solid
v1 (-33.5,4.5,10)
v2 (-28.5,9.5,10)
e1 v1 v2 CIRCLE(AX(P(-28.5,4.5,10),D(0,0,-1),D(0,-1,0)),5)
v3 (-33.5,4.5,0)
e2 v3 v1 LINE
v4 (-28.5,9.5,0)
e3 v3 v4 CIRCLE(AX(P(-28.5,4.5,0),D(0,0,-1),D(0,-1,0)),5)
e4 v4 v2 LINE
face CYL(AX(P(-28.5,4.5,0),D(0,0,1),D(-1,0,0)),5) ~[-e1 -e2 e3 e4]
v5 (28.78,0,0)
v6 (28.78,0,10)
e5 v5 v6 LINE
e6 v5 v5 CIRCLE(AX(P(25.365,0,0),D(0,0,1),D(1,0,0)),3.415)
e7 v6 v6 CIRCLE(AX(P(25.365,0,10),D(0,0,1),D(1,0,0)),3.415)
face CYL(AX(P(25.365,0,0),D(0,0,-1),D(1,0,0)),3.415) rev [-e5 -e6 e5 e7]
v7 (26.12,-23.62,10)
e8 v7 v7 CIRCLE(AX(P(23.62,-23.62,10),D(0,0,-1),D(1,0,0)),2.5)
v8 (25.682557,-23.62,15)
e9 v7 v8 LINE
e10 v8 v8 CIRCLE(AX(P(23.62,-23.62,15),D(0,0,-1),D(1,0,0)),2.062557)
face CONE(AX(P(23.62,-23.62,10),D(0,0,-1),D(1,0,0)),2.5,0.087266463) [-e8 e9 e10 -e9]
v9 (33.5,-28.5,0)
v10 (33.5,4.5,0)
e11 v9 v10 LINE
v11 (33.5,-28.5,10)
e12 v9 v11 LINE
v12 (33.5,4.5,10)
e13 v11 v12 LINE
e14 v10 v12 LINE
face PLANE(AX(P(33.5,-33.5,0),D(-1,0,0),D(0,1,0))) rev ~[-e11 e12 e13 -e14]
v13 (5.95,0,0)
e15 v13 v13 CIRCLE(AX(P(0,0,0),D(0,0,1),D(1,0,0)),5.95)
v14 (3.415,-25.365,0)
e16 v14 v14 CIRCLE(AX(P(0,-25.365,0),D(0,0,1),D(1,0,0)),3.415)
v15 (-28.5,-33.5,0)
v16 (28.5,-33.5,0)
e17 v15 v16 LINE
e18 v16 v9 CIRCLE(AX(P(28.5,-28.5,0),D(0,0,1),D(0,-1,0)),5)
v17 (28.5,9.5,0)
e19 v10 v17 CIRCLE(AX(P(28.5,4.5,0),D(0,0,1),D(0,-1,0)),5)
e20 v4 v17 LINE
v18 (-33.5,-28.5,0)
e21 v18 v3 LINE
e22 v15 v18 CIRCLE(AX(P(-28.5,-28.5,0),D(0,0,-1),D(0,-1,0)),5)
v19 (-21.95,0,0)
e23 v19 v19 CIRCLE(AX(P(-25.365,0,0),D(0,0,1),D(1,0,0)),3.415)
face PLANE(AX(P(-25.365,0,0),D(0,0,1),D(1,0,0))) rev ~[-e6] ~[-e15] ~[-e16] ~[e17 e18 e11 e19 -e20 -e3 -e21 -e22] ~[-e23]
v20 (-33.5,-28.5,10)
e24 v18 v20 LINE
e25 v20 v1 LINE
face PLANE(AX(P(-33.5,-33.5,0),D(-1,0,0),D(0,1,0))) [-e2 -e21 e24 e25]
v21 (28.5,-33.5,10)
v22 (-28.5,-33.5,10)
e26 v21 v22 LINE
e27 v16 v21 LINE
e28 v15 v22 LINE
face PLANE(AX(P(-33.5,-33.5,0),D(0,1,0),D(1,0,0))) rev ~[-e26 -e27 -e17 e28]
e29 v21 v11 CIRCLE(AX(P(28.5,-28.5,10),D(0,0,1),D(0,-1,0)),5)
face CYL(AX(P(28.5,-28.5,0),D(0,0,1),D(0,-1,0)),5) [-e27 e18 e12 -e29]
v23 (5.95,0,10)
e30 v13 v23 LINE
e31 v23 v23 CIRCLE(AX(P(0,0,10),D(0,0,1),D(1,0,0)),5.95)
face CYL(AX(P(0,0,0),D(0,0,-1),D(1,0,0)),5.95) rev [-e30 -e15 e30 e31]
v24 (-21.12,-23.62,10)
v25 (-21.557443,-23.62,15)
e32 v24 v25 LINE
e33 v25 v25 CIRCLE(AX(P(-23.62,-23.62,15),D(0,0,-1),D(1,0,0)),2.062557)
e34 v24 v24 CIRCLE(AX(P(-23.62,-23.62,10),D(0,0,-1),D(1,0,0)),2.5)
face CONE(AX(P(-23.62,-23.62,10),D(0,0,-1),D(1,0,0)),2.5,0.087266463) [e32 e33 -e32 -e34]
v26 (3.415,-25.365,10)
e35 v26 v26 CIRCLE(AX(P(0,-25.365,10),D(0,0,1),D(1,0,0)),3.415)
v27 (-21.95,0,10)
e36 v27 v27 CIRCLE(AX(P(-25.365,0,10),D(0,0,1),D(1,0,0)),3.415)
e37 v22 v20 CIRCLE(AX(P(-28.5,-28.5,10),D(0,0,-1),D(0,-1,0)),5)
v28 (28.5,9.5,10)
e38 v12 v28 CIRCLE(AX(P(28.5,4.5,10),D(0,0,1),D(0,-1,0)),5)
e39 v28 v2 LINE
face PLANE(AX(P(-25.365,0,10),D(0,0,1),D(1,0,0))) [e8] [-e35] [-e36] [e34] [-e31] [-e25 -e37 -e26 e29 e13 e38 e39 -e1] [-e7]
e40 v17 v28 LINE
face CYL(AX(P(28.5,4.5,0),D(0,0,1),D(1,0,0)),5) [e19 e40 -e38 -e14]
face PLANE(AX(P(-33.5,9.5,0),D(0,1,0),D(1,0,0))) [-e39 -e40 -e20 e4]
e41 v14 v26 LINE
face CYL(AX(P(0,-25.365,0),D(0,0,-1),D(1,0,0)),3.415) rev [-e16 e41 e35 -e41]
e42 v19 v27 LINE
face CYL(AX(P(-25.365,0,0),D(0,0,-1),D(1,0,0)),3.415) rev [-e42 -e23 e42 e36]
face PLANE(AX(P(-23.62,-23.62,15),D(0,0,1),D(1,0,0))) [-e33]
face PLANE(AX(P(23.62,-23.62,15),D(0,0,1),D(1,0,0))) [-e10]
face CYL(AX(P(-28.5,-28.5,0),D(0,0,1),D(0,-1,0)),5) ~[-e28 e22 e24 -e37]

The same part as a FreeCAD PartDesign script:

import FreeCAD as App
import Part
import Sketcher


def edges_at(feature, points):
    """Names of the edges that pass closest to the given points."""
    edges = feature.Shape.Edges
    near = lambda p: min(range(len(edges)), key=lambda i: edges[i].distToShape(Part.Vertex(*p))[0])
    return sorted({f"Edge{near(p) + 1}" for p in points})


def add_polygon(sketch, points):
    """Adds a closed chain of lines whose ends are joined by coincident constraints."""
    first, n = sketch.GeometryCount, len(points)
    for a, b in zip(points, points[1:] + points[:1]):
        sketch.addGeometry(Part.LineSegment(App.Vector(*a, 0), App.Vector(*b, 0)), False)
    for i in range(n):
        sketch.addConstraint(Sketcher.Constraint("Coincident", first + i, 2, first + (i + 1) % n, 1))

doc = App.newDocument("Part")
params = doc.addObject("Spreadsheet::Sheet", "Params")
for row, (alias, value) in enumerate([
    ("sketch1_diameter", "11.9 mm"),
    ("sketch1_diameter2", "10.85 mm"),
    ("sketch1_height", "43 mm"),
    ("pad1_length", "10 mm"),
    ("sketch2_diameter", "10.85 mm"),
    ("sketch2_height", "43 mm"),
    ("pad2_length", "10 mm"),
    ("sketch3_diameter", "10.85 mm"),
    ("sketch3_diameter2", "6.83 mm"),
    ("pad3_length", "10 mm"),
    ("sketch4_diameter", "10.85 mm"),
    ("sketch4_height", "43 mm"),
    ("pad4_length", "10 mm"),
    ("sketch5_diameter", "5 mm"),
    ("pad5_length", "5 mm"),
    ("pad5_taper", "-5 deg"),
    ("fillet_radius", "5 mm"),
], start=1):
    params.set(f"A{row}", alias)
    params.set(f"B{row}", "=" + value)
    params.setAlias(f"B{row}", alias)

body = doc.addObject("PartDesign::Body", "Body")

sketch1 = doc.addObject("Sketcher::SketchObject", "Sketch")
body.addObject(sketch1)
sketch1.AttachmentSupport = (doc.XY_Plane, [""])
sketch1.MapMode = "FlatFace"
add_polygon(sketch1, [(-15, 10), (-15, -34), (15, -34), (15, 10)])
sketch1.addGeometry(Part.Circle(App.Vector(0, -25, 0), App.Vector(0, 0, 1), 5), False)
sketch1.addGeometry(Part.Circle(App.Vector(0, 0, 0), App.Vector(0, 0, 1), 6), False)
sketch1.addConstraint(Sketcher.Constraint("Vertical", 0))
sketch1.addConstraint(Sketcher.Constraint("Horizontal", 1))
sketch1.addConstraint(Sketcher.Constraint("Vertical", 2))
sketch1.addConstraint(Sketcher.Constraint("Horizontal", 3))
sketch1.addConstraint(Sketcher.Constraint("Coincident", 5, 3, -1, 1))
sketch1.addConstraint(Sketcher.Constraint("PointOnObject", 4, 3, -2))
sketch1.addConstraint(Sketcher.Constraint("Diameter", 5, 11.9))
sketch1.addConstraint(Sketcher.Constraint("Diameter", 4, 10.85))
sketch1.addConstraint(Sketcher.Constraint("DistanceY", 0, 2, 0, 1, 43.0))
sketch1.addConstraint(Sketcher.Constraint("DistanceY", 0, 2, -1, 1, 33.5))
sketch1.addConstraint(Sketcher.Constraint("DistanceY", 4, 3, -1, 1, 25.365))
sketch1.addConstraint(Sketcher.Constraint("DistanceX", 1, 1, 1, 2, 29.956468))
sketch1.addConstraint(Sketcher.Constraint("DistanceX", 0, 2, -1, 1, 14.978234))
sketch1.setExpression("Constraints[10]", "Params.sketch1_diameter")
sketch1.setExpression("Constraints[11]", "Params.sketch1_diameter2")
sketch1.setExpression("Constraints[12]", "Params.sketch1_height")
pad1 = doc.addObject("PartDesign::Pad", "Pad")
body.addObject(pad1)
pad1.Profile = sketch1
pad1.setExpression("Length", "Params.pad1_length")

sketch2 = doc.addObject("Sketcher::SketchObject", "Sketch001")
body.addObject(sketch2)
sketch2.AttachmentSupport = (doc.XY_Plane, [""])
sketch2.MapMode = "FlatFace"
add_polygon(sketch2, [(-34, 10), (-34, -34), (-15, -34), (-15, 10)])
sketch2.addGeometry(Part.Circle(App.Vector(-25, 0, 0), App.Vector(0, 0, 1), 5), False)
add_polygon(sketch2, [(15, 10), (15, -34), (34, -34), (34, 10)])
sketch2.addGeometry(Part.Circle(App.Vector(25, 0, 0), App.Vector(0, 0, 1), 5), False)
sketch2.addConstraint(Sketcher.Constraint("Vertical", 0))
sketch2.addConstraint(Sketcher.Constraint("Horizontal", 1))
sketch2.addConstraint(Sketcher.Constraint("Vertical", 2))
sketch2.addConstraint(Sketcher.Constraint("Horizontal", 3))
sketch2.addConstraint(Sketcher.Constraint("Vertical", 5))
sketch2.addConstraint(Sketcher.Constraint("Horizontal", 6))
sketch2.addConstraint(Sketcher.Constraint("Vertical", 7))
sketch2.addConstraint(Sketcher.Constraint("Horizontal", 8))
sketch2.addConstraint(Sketcher.Constraint("Equal", 4, 9))
sketch2.addConstraint(Sketcher.Constraint("Symmetric", 4, 3, 9, 3, -1, 1))
sketch2.addConstraint(Sketcher.Constraint("Symmetric", 1, 2, 5, 2, -2))
sketch2.addConstraint(Sketcher.Constraint("Symmetric", 3, 2, 7, 2, -2))
sketch2.addConstraint(Sketcher.Constraint("PointOnObject", 4, 3, -1))
sketch2.addConstraint(Sketcher.Constraint("Diameter", 4, 10.85))
sketch2.addConstraint(Sketcher.Constraint("DistanceY", 0, 2, 0, 1, 43.0))
sketch2.addConstraint(Sketcher.Constraint("DistanceX", 0, 2, 6, 2, 67.0))
sketch2.addConstraint(Sketcher.Constraint("DistanceY", 0, 2, -1, 1, 33.5))
sketch2.addConstraint(Sketcher.Constraint("DistanceX", 4, 3, 9, 3, 50.73))
sketch2.addConstraint(Sketcher.Constraint("DistanceX", 1, 1, 1, 2, 18.521766))
sketch2.setExpression("Constraints[21]", "Params.sketch2_diameter")
sketch2.setExpression("Constraints[22]", "Params.sketch2_height")
pad2 = doc.addObject("PartDesign::Pad", "Pad001")
body.addObject(pad2)
pad2.Profile = sketch2
pad2.setExpression("Length", "Params.pad2_length")

sketch3 = doc.addObject("Sketcher::SketchObject", "Sketch002")
body.addObject(sketch3)
sketch3.AttachmentSupport = (doc.XY_Plane, [""])
sketch3.MapMode = "FlatFace"
sketch3.addGeometry(Part.Circle(App.Vector(-25.4, 0, 0), App.Vector(0, 0, 1), 5.4), False)
sketch3.addGeometry(Part.Circle(App.Vector(-25.4, 0, 0), App.Vector(0, 0, 1), 3.4), False)
sketch3.addGeometry(Part.Circle(App.Vector(25.4, 0, 0), App.Vector(0, 0, 1), 5.4), False)
sketch3.addGeometry(Part.Circle(App.Vector(25.4, 0, 0), App.Vector(0, 0, 1), 3.4), False)
sketch3.addGeometry(Part.Circle(App.Vector(0, -25.4, 0), App.Vector(0, 0, 1), 5.4), False)
sketch3.addGeometry(Part.Circle(App.Vector(0, -25.4, 0), App.Vector(0, 0, 1), 3.4), False)
sketch3.addConstraint(Sketcher.Constraint("Coincident", 1, 3, 0, 3))
sketch3.addConstraint(Sketcher.Constraint("Coincident", 3, 3, 2, 3))
sketch3.addConstraint(Sketcher.Constraint("Coincident", 5, 3, 4, 3))
sketch3.addConstraint(Sketcher.Constraint("Equal", 0, 2))
sketch3.addConstraint(Sketcher.Constraint("Equal", 1, 3))
sketch3.addConstraint(Sketcher.Constraint("Equal", 2, 4))
sketch3.addConstraint(Sketcher.Constraint("Equal", 3, 5))
sketch3.addConstraint(Sketcher.Constraint("Symmetric", 0, 3, 2, 3, -1, 1))
sketch3.addConstraint(Sketcher.Constraint("PointOnObject", 0, 3, -1))
sketch3.addConstraint(Sketcher.Constraint("PointOnObject", 4, 3, -2))
sketch3.addConstraint(Sketcher.Constraint("Diameter", 0, 10.85))
sketch3.addConstraint(Sketcher.Constraint("Diameter", 1, 6.83))
sketch3.addConstraint(Sketcher.Constraint("DistanceX", 0, 3, 2, 3, 50.73))
sketch3.addConstraint(Sketcher.Constraint("DistanceY", 4, 3, -1, 1, 25.365))
sketch3.setExpression("Constraints[10]", "Params.sketch3_diameter")
sketch3.setExpression("Constraints[11]", "Params.sketch3_diameter2")
pad3 = doc.addObject("PartDesign::Pad", "Pad002")
body.addObject(pad3)
pad3.Profile = sketch3
pad3.setExpression("Length", "Params.pad3_length")

sketch4 = doc.addObject("Sketcher::SketchObject", "Sketch003")
body.addObject(sketch4)
sketch4.AttachmentSupport = (doc.XY_Plane, [""])
sketch4.MapMode = "FlatFace"
add_polygon(sketch4, [(15, 10), (15, -34), (34, -34), (34, 10)])
sketch4.addGeometry(Part.Circle(App.Vector(25, 0, 0), App.Vector(0, 0, 1), 5), False)
add_polygon(sketch4, [(-34, 10), (-34, -34), (-15, -34), (-15, 10)])
sketch4.addGeometry(Part.Circle(App.Vector(-25, 0, 0), App.Vector(0, 0, 1), 5), False)
sketch4.addConstraint(Sketcher.Constraint("Vertical", 0))
sketch4.addConstraint(Sketcher.Constraint("Horizontal", 1))
sketch4.addConstraint(Sketcher.Constraint("Vertical", 2))
sketch4.addConstraint(Sketcher.Constraint("Horizontal", 3))
sketch4.addConstraint(Sketcher.Constraint("Vertical", 5))
sketch4.addConstraint(Sketcher.Constraint("Horizontal", 6))
sketch4.addConstraint(Sketcher.Constraint("Vertical", 7))
sketch4.addConstraint(Sketcher.Constraint("Horizontal", 8))
sketch4.addConstraint(Sketcher.Constraint("Equal", 4, 9))
sketch4.addConstraint(Sketcher.Constraint("Symmetric", 4, 3, 9, 3, -1, 1))
sketch4.addConstraint(Sketcher.Constraint("Symmetric", 1, 2, 5, 2, -2))
sketch4.addConstraint(Sketcher.Constraint("Symmetric", 3, 2, 7, 2, -2))
sketch4.addConstraint(Sketcher.Constraint("PointOnObject", 4, 3, -1))
sketch4.addConstraint(Sketcher.Constraint("Diameter", 4, 10.85))
sketch4.addConstraint(Sketcher.Constraint("DistanceY", 0, 2, 0, 1, 43.0))
sketch4.addConstraint(Sketcher.Constraint("DistanceX", 5, 2, 1, 2, 67.0))
sketch4.addConstraint(Sketcher.Constraint("DistanceY", 0, 2, -1, 1, 33.5))
sketch4.addConstraint(Sketcher.Constraint("DistanceX", 9, 3, 4, 3, 50.73))
sketch4.addConstraint(Sketcher.Constraint("DistanceX", 1, 1, 1, 2, 18.521766))
sketch4.setExpression("Constraints[21]", "Params.sketch4_diameter")
sketch4.setExpression("Constraints[22]", "Params.sketch4_height")
pad4 = doc.addObject("PartDesign::Pad", "Pad003")
body.addObject(pad4)
pad4.Profile = sketch4
pad4.setExpression("Length", "Params.pad4_length")

sketch5 = doc.addObject("Sketcher::SketchObject", "Sketch004")
body.addObject(sketch5)
sketch5.AttachmentSupport = (doc.XY_Plane, [""])
sketch5.MapMode = "FlatFace"
sketch5.AttachmentOffset = App.Placement(App.Vector(0, 0, 10), App.Rotation())
sketch5.addGeometry(Part.Circle(App.Vector(-23.6, -23.6, 0), App.Vector(0, 0, 1), 2.5), False)
sketch5.addGeometry(Part.Circle(App.Vector(23.6, -23.6, 0), App.Vector(0, 0, 1), 2.5), False)
sketch5.addConstraint(Sketcher.Constraint("Equal", 0, 1))
sketch5.addConstraint(Sketcher.Constraint("Symmetric", 0, 3, 1, 3, -2))
sketch5.addConstraint(Sketcher.Constraint("Diameter", 0, 5.0))
sketch5.addConstraint(Sketcher.Constraint("DistanceX", 0, 3, -1, 1, 23.62))
sketch5.addConstraint(Sketcher.Constraint("DistanceY", 0, 3, -1, 1, 23.62))
sketch5.setExpression("Constraints[2]", "Params.sketch5_diameter")
pad5 = doc.addObject("PartDesign::Pad", "Pad004")
body.addObject(pad5)
pad5.Profile = sketch5
pad5.setExpression("Length", "Params.pad5_length")
pad5.setExpression("TaperAngle", "Params.pad5_taper")
doc.recompute()

fillet = doc.addObject("PartDesign::Fillet", "Fillet")
body.addObject(fillet)
fillet.Base = (pad5, edges_at(pad5, [
    (-33.5, -33.5, 5),
    (33.5, -33.5, 5),
    (33.5, 9.5, 5),
    (-33.5, 9.5, 5),
]))
fillet.setExpression("Radius", "Params.fillet_radius")

doc.recompute()
